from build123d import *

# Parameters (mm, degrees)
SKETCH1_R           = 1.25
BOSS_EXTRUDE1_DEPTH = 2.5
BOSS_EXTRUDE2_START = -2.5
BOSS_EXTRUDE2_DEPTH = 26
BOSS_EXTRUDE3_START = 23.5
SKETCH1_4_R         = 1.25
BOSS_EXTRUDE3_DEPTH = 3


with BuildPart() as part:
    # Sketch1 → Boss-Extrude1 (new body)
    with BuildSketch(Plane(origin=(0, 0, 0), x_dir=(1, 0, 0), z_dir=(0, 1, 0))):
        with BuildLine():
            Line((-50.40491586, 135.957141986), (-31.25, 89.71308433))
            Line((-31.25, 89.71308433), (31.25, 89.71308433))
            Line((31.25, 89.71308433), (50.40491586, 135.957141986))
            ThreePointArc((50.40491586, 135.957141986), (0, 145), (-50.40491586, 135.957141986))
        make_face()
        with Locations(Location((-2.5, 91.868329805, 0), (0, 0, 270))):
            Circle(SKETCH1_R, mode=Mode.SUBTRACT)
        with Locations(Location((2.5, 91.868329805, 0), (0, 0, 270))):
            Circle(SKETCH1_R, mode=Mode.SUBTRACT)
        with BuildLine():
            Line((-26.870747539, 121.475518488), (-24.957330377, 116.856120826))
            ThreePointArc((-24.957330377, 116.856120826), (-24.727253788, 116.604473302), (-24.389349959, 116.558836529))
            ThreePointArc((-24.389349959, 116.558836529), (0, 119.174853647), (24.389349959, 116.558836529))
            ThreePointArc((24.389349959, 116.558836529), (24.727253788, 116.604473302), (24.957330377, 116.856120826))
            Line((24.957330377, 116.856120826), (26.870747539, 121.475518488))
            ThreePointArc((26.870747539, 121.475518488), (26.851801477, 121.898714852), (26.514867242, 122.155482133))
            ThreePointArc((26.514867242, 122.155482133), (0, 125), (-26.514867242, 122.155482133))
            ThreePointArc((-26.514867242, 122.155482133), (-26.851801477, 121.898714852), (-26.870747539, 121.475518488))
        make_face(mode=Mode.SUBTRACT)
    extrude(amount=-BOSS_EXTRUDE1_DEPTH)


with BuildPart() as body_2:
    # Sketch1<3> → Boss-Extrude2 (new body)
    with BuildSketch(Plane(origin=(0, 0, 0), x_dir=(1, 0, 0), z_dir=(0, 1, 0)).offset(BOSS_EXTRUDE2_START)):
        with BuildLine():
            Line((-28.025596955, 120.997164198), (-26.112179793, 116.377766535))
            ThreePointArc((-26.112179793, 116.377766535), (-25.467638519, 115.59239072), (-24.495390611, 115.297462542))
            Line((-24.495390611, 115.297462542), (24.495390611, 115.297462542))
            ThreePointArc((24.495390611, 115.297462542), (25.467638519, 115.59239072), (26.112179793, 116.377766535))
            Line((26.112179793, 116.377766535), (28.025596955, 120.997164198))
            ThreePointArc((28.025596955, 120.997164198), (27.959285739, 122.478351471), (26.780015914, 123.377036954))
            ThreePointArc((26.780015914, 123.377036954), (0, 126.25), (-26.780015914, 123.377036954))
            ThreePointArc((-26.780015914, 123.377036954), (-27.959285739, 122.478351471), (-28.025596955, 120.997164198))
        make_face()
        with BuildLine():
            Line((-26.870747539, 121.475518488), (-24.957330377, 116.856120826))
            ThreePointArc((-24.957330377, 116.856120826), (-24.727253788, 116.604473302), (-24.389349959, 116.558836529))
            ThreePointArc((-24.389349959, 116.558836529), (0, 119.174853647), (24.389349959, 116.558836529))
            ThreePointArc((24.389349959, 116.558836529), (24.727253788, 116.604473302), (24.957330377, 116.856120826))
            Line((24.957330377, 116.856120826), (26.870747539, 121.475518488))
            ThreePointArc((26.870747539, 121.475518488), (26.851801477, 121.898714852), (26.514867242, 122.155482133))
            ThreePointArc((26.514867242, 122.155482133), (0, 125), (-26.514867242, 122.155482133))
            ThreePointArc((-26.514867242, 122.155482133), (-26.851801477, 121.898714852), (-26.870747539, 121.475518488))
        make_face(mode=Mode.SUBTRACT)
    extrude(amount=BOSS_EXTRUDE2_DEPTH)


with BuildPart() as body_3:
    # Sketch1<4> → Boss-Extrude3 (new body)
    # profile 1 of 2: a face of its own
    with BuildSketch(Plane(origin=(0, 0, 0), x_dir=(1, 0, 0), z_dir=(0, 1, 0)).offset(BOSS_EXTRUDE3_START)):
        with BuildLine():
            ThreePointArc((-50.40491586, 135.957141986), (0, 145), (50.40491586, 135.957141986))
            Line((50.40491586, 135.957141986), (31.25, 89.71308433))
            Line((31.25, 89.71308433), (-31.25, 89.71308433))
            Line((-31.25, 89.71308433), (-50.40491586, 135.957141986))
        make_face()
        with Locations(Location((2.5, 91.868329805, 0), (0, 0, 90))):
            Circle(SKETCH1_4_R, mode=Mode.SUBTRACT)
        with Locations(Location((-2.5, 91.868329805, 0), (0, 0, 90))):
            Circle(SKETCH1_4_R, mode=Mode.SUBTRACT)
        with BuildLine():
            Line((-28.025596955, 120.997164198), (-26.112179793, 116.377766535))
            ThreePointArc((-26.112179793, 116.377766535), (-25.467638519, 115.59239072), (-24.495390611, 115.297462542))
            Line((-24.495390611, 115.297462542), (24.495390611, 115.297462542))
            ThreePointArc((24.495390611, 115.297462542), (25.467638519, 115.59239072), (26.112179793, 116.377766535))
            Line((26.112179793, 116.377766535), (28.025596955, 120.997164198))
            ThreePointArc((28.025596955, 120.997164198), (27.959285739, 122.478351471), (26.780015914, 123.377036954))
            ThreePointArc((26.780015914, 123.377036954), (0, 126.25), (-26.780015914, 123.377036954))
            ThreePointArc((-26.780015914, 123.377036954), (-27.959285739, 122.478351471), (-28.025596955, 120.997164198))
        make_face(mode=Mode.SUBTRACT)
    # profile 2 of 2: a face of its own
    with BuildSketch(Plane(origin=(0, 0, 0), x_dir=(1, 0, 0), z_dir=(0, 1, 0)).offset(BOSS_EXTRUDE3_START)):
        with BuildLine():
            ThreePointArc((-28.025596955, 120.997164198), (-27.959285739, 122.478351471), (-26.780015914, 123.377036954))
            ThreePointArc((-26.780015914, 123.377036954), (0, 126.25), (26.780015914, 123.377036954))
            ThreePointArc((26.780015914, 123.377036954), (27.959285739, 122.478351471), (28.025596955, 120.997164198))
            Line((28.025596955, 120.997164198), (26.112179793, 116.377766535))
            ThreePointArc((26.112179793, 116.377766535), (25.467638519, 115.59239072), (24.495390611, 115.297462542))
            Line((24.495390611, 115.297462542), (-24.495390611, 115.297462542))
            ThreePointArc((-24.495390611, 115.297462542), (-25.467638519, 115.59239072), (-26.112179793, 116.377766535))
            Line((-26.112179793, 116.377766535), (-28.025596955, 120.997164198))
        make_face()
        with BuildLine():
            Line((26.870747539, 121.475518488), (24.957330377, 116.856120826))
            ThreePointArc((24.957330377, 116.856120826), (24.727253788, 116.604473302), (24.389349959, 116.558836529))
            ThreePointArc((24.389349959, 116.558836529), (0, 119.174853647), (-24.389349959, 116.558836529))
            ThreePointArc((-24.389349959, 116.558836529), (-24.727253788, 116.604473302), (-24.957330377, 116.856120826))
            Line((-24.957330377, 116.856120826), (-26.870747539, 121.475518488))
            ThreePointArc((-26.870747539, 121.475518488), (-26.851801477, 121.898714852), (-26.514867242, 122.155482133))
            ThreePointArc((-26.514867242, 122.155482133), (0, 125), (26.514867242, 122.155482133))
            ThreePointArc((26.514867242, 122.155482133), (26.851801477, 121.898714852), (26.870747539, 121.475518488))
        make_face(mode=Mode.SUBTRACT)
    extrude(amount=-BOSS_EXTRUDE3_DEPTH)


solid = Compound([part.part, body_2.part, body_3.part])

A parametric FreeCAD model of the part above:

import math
import FreeCAD as App
import Part
import Sketcher

V = App.Vector
Q = App.Units.Quantity

doc = App.newDocument("Part")
body = doc.addObject("PartDesign::Body", "Body")

# Sketch on XZ plane
sketch1 = body.newObject("Sketcher::SketchObject", "Sketch")
sketch1.AttachmentSupport = (doc.getObject("XZ_Plane"), [""])
sketch1.MapMode = "FlatFace"
sketch1.addGeometry(Part.LineSegment(V(-50.404916, -135.957142, 0), V(-31.25, -89.713084, 0)), False)
sketch1.addGeometry(Part.LineSegment(V(-31.25, -89.713084, 0), V(31.25, -89.713084, 0)), False)
sketch1.addGeometry(Part.LineSegment(V(31.25, -89.713084, 0), V(50.404916, -135.957142, 0)), False)
sketch1.addGeometry(Part.ArcOfCircle(Part.Circle(V(0, 0, 0), V(0, 0, 1), 145), math.radians(-110.341819), math.radians(-69.658181)), False)
sketch1.addGeometry(Part.Circle(V(-2.5, -91.86833, 0), V(0, 0, 1), 1.25), False)
sketch1.addGeometry(Part.Circle(V(2.5, -91.86833, 0), V(0, 0, 1), 1.25), False)
sketch1.addGeometry(Part.LineSegment(V(-24.95733, -116.856121, 0), V(-26.870748, -121.475518, 0)), False)
sketch1.addGeometry(Part.ArcOfCircle(Part.Circle(V(-26.408808, -121.66686, 0), V(0, 0, 1), 0.5), math.radians(157.5), math.radians(257.753444)), False)
sketch1.addGeometry(Part.ArcOfCircle(Part.Circle(V(0, 0, 0), V(0, 0, 1), 125), math.radians(-102.246556), math.radians(-77.753444)), False)
sketch1.addGeometry(Part.ArcOfCircle(Part.Circle(V(26.408808, -121.66686, 0), V(0, 0, 1), 0.5), math.radians(-77.753444), math.radians(22.5)), False)
sketch1.addGeometry(Part.LineSegment(V(26.870748, -121.475518, 0), V(24.95733, -116.856121, 0)), False)
sketch1.addGeometry(Part.ArcOfCircle(Part.Circle(V(24.495391, -117.047463, 0), V(0, 0, 1), 0.5), math.radians(22.5), math.radians(102.24435)), False)
sketch1.addGeometry(Part.ArcOfCircle(Part.Circle(V(0, -4.174854, 0), V(0, 0, 1), 115), math.radians(-102.24435), math.radians(-77.75565)), False)
sketch1.addGeometry(Part.ArcOfCircle(Part.Circle(V(-24.495391, -117.047463, 0), V(0, 0, 1), 0.5), math.radians(77.75565), math.radians(157.5)), False)
sketch1.addConstraint(Sketcher.Constraint("Coincident", 0, 2, 1, 1))
sketch1.addConstraint(Sketcher.Constraint("Coincident", 1, 2, 2, 1))
sketch1.addConstraint(Sketcher.Constraint("Coincident", 2, 2, 3, 2))
sketch1.addConstraint(Sketcher.Constraint("Coincident", 3, 1, 0, 1))
sketch1.addConstraint(Sketcher.Constraint("Tangent", 6, 2, 7, 1))
sketch1.addConstraint(Sketcher.Constraint("Tangent", 7, 2, 8, 1))
sketch1.addConstraint(Sketcher.Constraint("Tangent", 8, 2, 9, 1))
sketch1.addConstraint(Sketcher.Constraint("Tangent", 9, 2, 10, 1))
sketch1.addConstraint(Sketcher.Constraint("Tangent", 10, 2, 11, 1))
sketch1.addConstraint(Sketcher.Constraint("Tangent", 11, 2, 12, 2))
sketch1.addConstraint(Sketcher.Constraint("Tangent", 12, 1, 13, 1))
sketch1.addConstraint(Sketcher.Constraint("Tangent", 13, 2, 6, 1))
sketch1.addConstraint(Sketcher.Constraint("Horizontal", 1))
sketch1.addConstraint(Sketcher.Constraint("Coincident", 3, 3, -1, 1))
sketch1.addConstraint(Sketcher.Constraint("Coincident", 8, 3, -1, 1))
sketch1.addConstraint(Sketcher.Constraint("Equal", 4, 5))
sketch1.addConstraint(Sketcher.Constraint("Equal", 7, 9))
sketch1.addConstraint(Sketcher.Constraint("Equal", 9, 11))
sketch1.addConstraint(Sketcher.Constraint("Equal", 11, 13))
sketch1.addConstraint(Sketcher.Constraint("Symmetric", 4, 3, 5, 3, -2))
sketch1.addConstraint(Sketcher.Constraint("Symmetric", 11, 3, 13, 3, -2))
sketch1.addConstraint(Sketcher.Constraint("Parallel", 0, 6))
sketch1.addConstraint(Sketcher.Constraint("Parallel", 2, 10))
sketch1.addConstraint(Sketcher.Constraint("Horizontal", 7, 3, 9, 3))
sketch1.addConstraint(Sketcher.Constraint("Horizontal", 2, 2, 3, 1))
sketch1.addConstraint(Sketcher.Constraint("Radius", 3, 145.0))
sketch1.addConstraint(Sketcher.Constraint("Radius", 8, 125.0))
sketch1.addConstraint(Sketcher.Constraint("Radius", 12, 115.0))
sketch1.addConstraint(Sketcher.Constraint("Diameter", 4, 2.5))
sketch1.addConstraint(Sketcher.Constraint("Radius", 7, 0.5))
sketch1.addConstraint(Sketcher.Constraint("Distance", 6, 5.0))
sketch1.addConstraint(Sketcher.Constraint("DistanceX", 1, 1, 1, 2, 62.5))
sketch1.addConstraint(Sketcher.Constraint("Angle", 0, Q("67.5 deg")))
sketch1.addConstraint(Sketcher.Constraint("DistanceX", 4, 3, 5, 3, 5.0))
sketch1.addConstraint(Sketcher.Constraint("DistanceX", 7, 3, 11, 3, 50.904198))
sketch1.addConstraint(Sketcher.Constraint("DistanceY", 4, 3, -1, 1, 91.86833))
sketch1.addConstraint(Sketcher.Constraint("DistanceY", 2, 2, -1, 1, 135.957142))
pad1 = body.newObject("PartDesign::Pad", "Pad")
pad1.Profile = sketch1
pad1.Length = 2.5
body2 = doc.addObject("PartDesign::Body", "Body001")

# Sketch on XZ plane
sketch2 = body2.newObject("Sketcher::SketchObject", "Sketch001")
sketch2.AttachmentSupport = (doc.getObject("XZ_Plane001"), [""])
sketch2.MapMode = "FlatFace"
sketch2.AttachmentOffset = App.Placement(V(0, 0, 2.5), App.Rotation())
sketch2.addGeometry(Part.LineSegment(V(-28.025597, -120.997164, 0), V(-26.11218, -116.377767, 0)), False)
sketch2.addGeometry(Part.ArcOfCircle(Part.Circle(V(-24.495391, -117.047463, 0), V(0, 0, 1), 1.75), math.radians(90), math.radians(157.5)), False)
sketch2.addGeometry(Part.LineSegment(V(-24.495391, -115.297463, 0), V(24.495391, -115.297463, 0)), False)
sketch2.addGeometry(Part.ArcOfCircle(Part.Circle(V(24.495391, -117.047463, 0), V(0, 0, 1), 1.75), math.radians(22.5), math.radians(90)), False)
sketch2.addGeometry(Part.LineSegment(V(26.11218, -116.377767, 0), V(28.025597, -120.997164, 0)), False)
sketch2.addGeometry(Part.ArcOfCircle(Part.Circle(V(26.408808, -121.66686, 0), V(0, 0, 1), 1.75), math.radians(-77.753444), math.radians(22.5)), False)
sketch2.addGeometry(Part.ArcOfCircle(Part.Circle(V(0, 0, 0), V(0, 0, 1), 126.25), math.radians(-102.246556), math.radians(-77.753444)), False)
sketch2.addGeometry(Part.ArcOfCircle(Part.Circle(V(-26.408808, -121.66686, 0), V(0, 0, 1), 1.75), math.radians(157.5), math.radians(257.753444)), False)
sketch2.addGeometry(Part.LineSegment(V(-24.95733, -116.856121, 0), V(-26.870748, -121.475518, 0)), False)
sketch2.addGeometry(Part.ArcOfCircle(Part.Circle(V(-26.408808, -121.66686, 0), V(0, 0, 1), 0.5), math.radians(157.5), math.radians(257.753444)), False)
sketch2.addGeometry(Part.ArcOfCircle(Part.Circle(V(0, 0, 0), V(0, 0, 1), 125), math.radians(-102.246556), math.radians(-77.753444)), False)
sketch2.addGeometry(Part.ArcOfCircle(Part.Circle(V(26.408808, -121.66686, 0), V(0, 0, 1), 0.5), math.radians(-77.753444), math.radians(22.5)), False)
sketch2.addGeometry(Part.LineSegment(V(26.870748, -121.475518, 0), V(24.95733, -116.856121, 0)), False)
sketch2.addGeometry(Part.ArcOfCircle(Part.Circle(V(24.495391, -117.047463, 0), V(0, 0, 1), 0.5), math.radians(22.5), math.radians(102.24435)), False)
sketch2.addGeometry(Part.ArcOfCircle(Part.Circle(V(0, -4.174854, 0), V(0, 0, 1), 115), math.radians(-102.24435), math.radians(-77.75565)), False)
sketch2.addGeometry(Part.ArcOfCircle(Part.Circle(V(-24.495391, -117.047463, 0), V(0, 0, 1), 0.5), math.radians(77.75565), math.radians(157.5)), False)
sketch2.addConstraint(Sketcher.Constraint("Tangent", 0, 2, 1, 2))
sketch2.addConstraint(Sketcher.Constraint("Tangent", 1, 1, 2, 1))
sketch2.addConstraint(Sketcher.Constraint("Tangent", 2, 2, 3, 2))
sketch2.addConstraint(Sketcher.Constraint("Tangent", 3, 1, 4, 1))
sketch2.addConstraint(Sketcher.Constraint("Tangent", 4, 2, 5, 2))
sketch2.addConstraint(Sketcher.Constraint("Tangent", 5, 1, 6, 2))
sketch2.addConstraint(Sketcher.Constraint("Tangent", 6, 1, 7, 2))
sketch2.addConstraint(Sketcher.Constraint("Tangent", 7, 1, 0, 1))
sketch2.addConstraint(Sketcher.Constraint("Tangent", 8, 2, 9, 1))
sketch2.addConstraint(Sketcher.Constraint("Tangent", 9, 2, 10, 1))
sketch2.addConstraint(Sketcher.Constraint("Tangent", 10, 2, 11, 1))
sketch2.addConstraint(Sketcher.Constraint("Tangent", 11, 2, 12, 1))
sketch2.addConstraint(Sketcher.Constraint("Tangent", 12, 2, 13, 1))
sketch2.addConstraint(Sketcher.Constraint("Tangent", 13, 2, 14, 2))
sketch2.addConstraint(Sketcher.Constraint("Tangent", 14, 1, 15, 1))
sketch2.addConstraint(Sketcher.Constraint("Tangent", 15, 2, 8, 1))
sketch2.addConstraint(Sketcher.Constraint("Horizontal", 2))
sketch2.addConstraint(Sketcher.Constraint("Coincident", 6, 3, -1, 1))
sketch2.addConstraint(Sketcher.Constraint("Coincident", 10, 3, -1, 1))
sketch2.addConstraint(Sketcher.Constraint("Coincident", 9, 3, 7, 3))
sketch2.addConstraint(Sketcher.Constraint("Coincident", 11, 3, 5, 3))
sketch2.addConstraint(Sketcher.Constraint("Coincident", 13, 3, 3, 3))
sketch2.addConstraint(Sketcher.Constraint("Coincident", 15, 3, 1, 3))
sketch2.addConstraint(Sketcher.Constraint("Equal", 1, 3))
sketch2.addConstraint(Sketcher.Constraint("Equal", 3, 5))
sketch2.addConstraint(Sketcher.Constraint("Equal", 5, 7))
sketch2.addConstraint(Sketcher.Constraint("Equal", 11, 13))
sketch2.addConstraint(Sketcher.Constraint("Equal", 13, 15))
sketch2.addConstraint(Sketcher.Constraint("Symmetric", 0, 2, 3, 1, -2))
sketch2.addConstraint(Sketcher.Constraint("Radius", 10, 125.0))
sketch2.addConstraint(Sketcher.Constraint("Radius", 14, 115.0))
sketch2.addConstraint(Sketcher.Constraint("Radius", 9, 0.5))
sketch2.addConstraint(Sketcher.Constraint("Radius", 1, 1.75))
sketch2.addConstraint(Sketcher.Constraint("Distance", 0, 5.0))
sketch2.addConstraint(Sketcher.Constraint("Angle", 0, Q("67.5 deg")))
sketch2.addConstraint(Sketcher.Constraint("DistanceX", 2, 1, 2, 2, 48.990781))
pad2 = body2.newObject("PartDesign::Pad", "Pad001")
pad2.Profile = sketch2
pad2.Length = 26
pad2.Reversed = True
body3 = doc.addObject("PartDesign::Body", "Body002")

# Sketch on XZ plane
sketch3 = body3.newObject("Sketcher::SketchObject", "Sketch002")
sketch3.AttachmentSupport = (doc.getObject("XZ_Plane002"), [""])
sketch3.MapMode = "FlatFace"
sketch3.AttachmentOffset = App.Placement(V(0, 0, -23.5), App.Rotation())
sketch3.addGeometry(Part.ArcOfCircle(Part.Circle(V(0, 0, 0), V(0, 0, 1), 145), math.radians(-110.341819), math.radians(-69.658181)), False)
sketch3.addGeometry(Part.LineSegment(V(-50.404916, -135.957142, 0), V(-31.25, -89.713084, 0)), False)
sketch3.addGeometry(Part.LineSegment(V(-31.25, -89.713084, 0), V(31.25, -89.713084, 0)), False)
sketch3.addGeometry(Part.LineSegment(V(31.25, -89.713084, 0), V(50.404916, -135.957142, 0)), False)
sketch3.addGeometry(Part.Circle(V(2.5, -91.86833, 0), V(0, 0, 1), 1.25), False)
sketch3.addGeometry(Part.Circle(V(-2.5, -91.86833, 0), V(0, 0, 1), 1.25), False)
sketch3.addGeometry(Part.ArcOfCircle(Part.Circle(V(26.408808, -121.66686, 0), V(0, 0, 1), 0.5), math.radians(-77.753444), math.radians(22.5)), False)
sketch3.addGeometry(Part.LineSegment(V(26.870748, -121.475518, 0), V(24.95733, -116.856121, 0)), False)
sketch3.addGeometry(Part.ArcOfCircle(Part.Circle(V(24.495391, -117.047463, 0), V(0, 0, 1), 0.5), math.radians(22.5), math.radians(102.24435)), False)
sketch3.addGeometry(Part.ArcOfCircle(Part.Circle(V(0, -4.174854, 0), V(0, 0, 1), 115), math.radians(-102.24435), math.radians(-77.75565)), False)
sketch3.addGeometry(Part.ArcOfCircle(Part.Circle(V(-24.495391, -117.047463, 0), V(0, 0, 1), 0.5), math.radians(77.75565), math.radians(157.5)), False)
sketch3.addGeometry(Part.LineSegment(V(-24.95733, -116.856121, 0), V(-26.870748, -121.475518, 0)), False)
sketch3.addGeometry(Part.ArcOfCircle(Part.Circle(V(-26.408808, -121.66686, 0), V(0, 0, 1), 0.5), math.radians(157.5), math.radians(257.753444)), False)
sketch3.addGeometry(Part.ArcOfCircle(Part.Circle(V(0, 0, 0), V(0, 0, 1), 125), math.radians(-102.246556), math.radians(-77.753444)), False)
sketch3.addConstraint(Sketcher.Constraint("Coincident", 0, 1, 1, 1))
sketch3.addConstraint(Sketcher.Constraint("Coincident", 1, 2, 2, 1))
sketch3.addConstraint(Sketcher.Constraint("Coincident", 2, 2, 3, 1))
sketch3.addConstraint(Sketcher.Constraint("Coincident", 3, 2, 0, 2))
sketch3.addConstraint(Sketcher.Constraint("Tangent", 6, 2, 7, 1))
sketch3.addConstraint(Sketcher.Constraint("Tangent", 7, 2, 8, 1))
sketch3.addConstraint(Sketcher.Constraint("Tangent", 8, 2, 9, 2))
sketch3.addConstraint(Sketcher.Constraint("Tangent", 9, 1, 10, 1))
sketch3.addConstraint(Sketcher.Constraint("Tangent", 10, 2, 11, 1))
sketch3.addConstraint(Sketcher.Constraint("Tangent", 11, 2, 12, 1))
sketch3.addConstraint(Sketcher.Constraint("Tangent", 12, 2, 13, 1))
sketch3.addConstraint(Sketcher.Constraint("Tangent", 13, 2, 6, 1))
sketch3.addConstraint(Sketcher.Constraint("Horizontal", 2))
sketch3.addConstraint(Sketcher.Constraint("Coincident", 0, 3, -1, 1))
sketch3.addConstraint(Sketcher.Constraint("Coincident", 13, 3, -1, 1))
sketch3.addConstraint(Sketcher.Constraint("Equal", 4, 5))
sketch3.addConstraint(Sketcher.Constraint("Equal", 6, 8))
sketch3.addConstraint(Sketcher.Constraint("Equal", 8, 10))
sketch3.addConstraint(Sketcher.Constraint("Equal", 10, 12))
sketch3.addConstraint(Sketcher.Constraint("Symmetric", 4, 3, 5, 3, -2))
sketch3.addConstraint(Sketcher.Constraint("Symmetric", 8, 3, 10, 3, -2))
sketch3.addConstraint(Sketcher.Constraint("Parallel", 3, 7))
sketch3.addConstraint(Sketcher.Constraint("Parallel", 1, 11))
sketch3.addConstraint(Sketcher.Constraint("Horizontal", 6, 3, 12, 3))
sketch3.addConstraint(Sketcher.Constraint("Horizontal", 0, 1, 3, 2))
sketch3.addConstraint(Sketcher.Constraint("Radius", 0, 145.0))
sketch3.addConstraint(Sketcher.Constraint("Radius", 9, 115.0))
sketch3.addConstraint(Sketcher.Constraint("Radius", 13, 125.0))
sketch3.addConstraint(Sketcher.Constraint("Diameter", 4, 2.5))
sketch3.addConstraint(Sketcher.Constraint("Radius", 6, 0.5))
sketch3.addConstraint(Sketcher.Constraint("Distance", 7, 5.0))
sketch3.addConstraint(Sketcher.Constraint("DistanceX", 2, 1, 2, 2, 62.5))
sketch3.addConstraint(Sketcher.Constraint("Angle", 1, Q("67.5 deg")))
sketch3.addConstraint(Sketcher.Constraint("DistanceX", 5, 3, 4, 3, 5.0))
sketch3.addConstraint(Sketcher.Constraint("DistanceX", 10, 3, 6, 3, 50.904198))
sketch3.addConstraint(Sketcher.Constraint("DistanceY", 4, 3, -1, 1, 91.86833))
sketch3.addConstraint(Sketcher.Constraint("DistanceY", 3, 2, -1, 1, 135.957142))
pad3 = body3.newObject("PartDesign::Pad", "Pad002")
pad3.Profile = sketch3
pad3.Length = 3

doc.recompute()
